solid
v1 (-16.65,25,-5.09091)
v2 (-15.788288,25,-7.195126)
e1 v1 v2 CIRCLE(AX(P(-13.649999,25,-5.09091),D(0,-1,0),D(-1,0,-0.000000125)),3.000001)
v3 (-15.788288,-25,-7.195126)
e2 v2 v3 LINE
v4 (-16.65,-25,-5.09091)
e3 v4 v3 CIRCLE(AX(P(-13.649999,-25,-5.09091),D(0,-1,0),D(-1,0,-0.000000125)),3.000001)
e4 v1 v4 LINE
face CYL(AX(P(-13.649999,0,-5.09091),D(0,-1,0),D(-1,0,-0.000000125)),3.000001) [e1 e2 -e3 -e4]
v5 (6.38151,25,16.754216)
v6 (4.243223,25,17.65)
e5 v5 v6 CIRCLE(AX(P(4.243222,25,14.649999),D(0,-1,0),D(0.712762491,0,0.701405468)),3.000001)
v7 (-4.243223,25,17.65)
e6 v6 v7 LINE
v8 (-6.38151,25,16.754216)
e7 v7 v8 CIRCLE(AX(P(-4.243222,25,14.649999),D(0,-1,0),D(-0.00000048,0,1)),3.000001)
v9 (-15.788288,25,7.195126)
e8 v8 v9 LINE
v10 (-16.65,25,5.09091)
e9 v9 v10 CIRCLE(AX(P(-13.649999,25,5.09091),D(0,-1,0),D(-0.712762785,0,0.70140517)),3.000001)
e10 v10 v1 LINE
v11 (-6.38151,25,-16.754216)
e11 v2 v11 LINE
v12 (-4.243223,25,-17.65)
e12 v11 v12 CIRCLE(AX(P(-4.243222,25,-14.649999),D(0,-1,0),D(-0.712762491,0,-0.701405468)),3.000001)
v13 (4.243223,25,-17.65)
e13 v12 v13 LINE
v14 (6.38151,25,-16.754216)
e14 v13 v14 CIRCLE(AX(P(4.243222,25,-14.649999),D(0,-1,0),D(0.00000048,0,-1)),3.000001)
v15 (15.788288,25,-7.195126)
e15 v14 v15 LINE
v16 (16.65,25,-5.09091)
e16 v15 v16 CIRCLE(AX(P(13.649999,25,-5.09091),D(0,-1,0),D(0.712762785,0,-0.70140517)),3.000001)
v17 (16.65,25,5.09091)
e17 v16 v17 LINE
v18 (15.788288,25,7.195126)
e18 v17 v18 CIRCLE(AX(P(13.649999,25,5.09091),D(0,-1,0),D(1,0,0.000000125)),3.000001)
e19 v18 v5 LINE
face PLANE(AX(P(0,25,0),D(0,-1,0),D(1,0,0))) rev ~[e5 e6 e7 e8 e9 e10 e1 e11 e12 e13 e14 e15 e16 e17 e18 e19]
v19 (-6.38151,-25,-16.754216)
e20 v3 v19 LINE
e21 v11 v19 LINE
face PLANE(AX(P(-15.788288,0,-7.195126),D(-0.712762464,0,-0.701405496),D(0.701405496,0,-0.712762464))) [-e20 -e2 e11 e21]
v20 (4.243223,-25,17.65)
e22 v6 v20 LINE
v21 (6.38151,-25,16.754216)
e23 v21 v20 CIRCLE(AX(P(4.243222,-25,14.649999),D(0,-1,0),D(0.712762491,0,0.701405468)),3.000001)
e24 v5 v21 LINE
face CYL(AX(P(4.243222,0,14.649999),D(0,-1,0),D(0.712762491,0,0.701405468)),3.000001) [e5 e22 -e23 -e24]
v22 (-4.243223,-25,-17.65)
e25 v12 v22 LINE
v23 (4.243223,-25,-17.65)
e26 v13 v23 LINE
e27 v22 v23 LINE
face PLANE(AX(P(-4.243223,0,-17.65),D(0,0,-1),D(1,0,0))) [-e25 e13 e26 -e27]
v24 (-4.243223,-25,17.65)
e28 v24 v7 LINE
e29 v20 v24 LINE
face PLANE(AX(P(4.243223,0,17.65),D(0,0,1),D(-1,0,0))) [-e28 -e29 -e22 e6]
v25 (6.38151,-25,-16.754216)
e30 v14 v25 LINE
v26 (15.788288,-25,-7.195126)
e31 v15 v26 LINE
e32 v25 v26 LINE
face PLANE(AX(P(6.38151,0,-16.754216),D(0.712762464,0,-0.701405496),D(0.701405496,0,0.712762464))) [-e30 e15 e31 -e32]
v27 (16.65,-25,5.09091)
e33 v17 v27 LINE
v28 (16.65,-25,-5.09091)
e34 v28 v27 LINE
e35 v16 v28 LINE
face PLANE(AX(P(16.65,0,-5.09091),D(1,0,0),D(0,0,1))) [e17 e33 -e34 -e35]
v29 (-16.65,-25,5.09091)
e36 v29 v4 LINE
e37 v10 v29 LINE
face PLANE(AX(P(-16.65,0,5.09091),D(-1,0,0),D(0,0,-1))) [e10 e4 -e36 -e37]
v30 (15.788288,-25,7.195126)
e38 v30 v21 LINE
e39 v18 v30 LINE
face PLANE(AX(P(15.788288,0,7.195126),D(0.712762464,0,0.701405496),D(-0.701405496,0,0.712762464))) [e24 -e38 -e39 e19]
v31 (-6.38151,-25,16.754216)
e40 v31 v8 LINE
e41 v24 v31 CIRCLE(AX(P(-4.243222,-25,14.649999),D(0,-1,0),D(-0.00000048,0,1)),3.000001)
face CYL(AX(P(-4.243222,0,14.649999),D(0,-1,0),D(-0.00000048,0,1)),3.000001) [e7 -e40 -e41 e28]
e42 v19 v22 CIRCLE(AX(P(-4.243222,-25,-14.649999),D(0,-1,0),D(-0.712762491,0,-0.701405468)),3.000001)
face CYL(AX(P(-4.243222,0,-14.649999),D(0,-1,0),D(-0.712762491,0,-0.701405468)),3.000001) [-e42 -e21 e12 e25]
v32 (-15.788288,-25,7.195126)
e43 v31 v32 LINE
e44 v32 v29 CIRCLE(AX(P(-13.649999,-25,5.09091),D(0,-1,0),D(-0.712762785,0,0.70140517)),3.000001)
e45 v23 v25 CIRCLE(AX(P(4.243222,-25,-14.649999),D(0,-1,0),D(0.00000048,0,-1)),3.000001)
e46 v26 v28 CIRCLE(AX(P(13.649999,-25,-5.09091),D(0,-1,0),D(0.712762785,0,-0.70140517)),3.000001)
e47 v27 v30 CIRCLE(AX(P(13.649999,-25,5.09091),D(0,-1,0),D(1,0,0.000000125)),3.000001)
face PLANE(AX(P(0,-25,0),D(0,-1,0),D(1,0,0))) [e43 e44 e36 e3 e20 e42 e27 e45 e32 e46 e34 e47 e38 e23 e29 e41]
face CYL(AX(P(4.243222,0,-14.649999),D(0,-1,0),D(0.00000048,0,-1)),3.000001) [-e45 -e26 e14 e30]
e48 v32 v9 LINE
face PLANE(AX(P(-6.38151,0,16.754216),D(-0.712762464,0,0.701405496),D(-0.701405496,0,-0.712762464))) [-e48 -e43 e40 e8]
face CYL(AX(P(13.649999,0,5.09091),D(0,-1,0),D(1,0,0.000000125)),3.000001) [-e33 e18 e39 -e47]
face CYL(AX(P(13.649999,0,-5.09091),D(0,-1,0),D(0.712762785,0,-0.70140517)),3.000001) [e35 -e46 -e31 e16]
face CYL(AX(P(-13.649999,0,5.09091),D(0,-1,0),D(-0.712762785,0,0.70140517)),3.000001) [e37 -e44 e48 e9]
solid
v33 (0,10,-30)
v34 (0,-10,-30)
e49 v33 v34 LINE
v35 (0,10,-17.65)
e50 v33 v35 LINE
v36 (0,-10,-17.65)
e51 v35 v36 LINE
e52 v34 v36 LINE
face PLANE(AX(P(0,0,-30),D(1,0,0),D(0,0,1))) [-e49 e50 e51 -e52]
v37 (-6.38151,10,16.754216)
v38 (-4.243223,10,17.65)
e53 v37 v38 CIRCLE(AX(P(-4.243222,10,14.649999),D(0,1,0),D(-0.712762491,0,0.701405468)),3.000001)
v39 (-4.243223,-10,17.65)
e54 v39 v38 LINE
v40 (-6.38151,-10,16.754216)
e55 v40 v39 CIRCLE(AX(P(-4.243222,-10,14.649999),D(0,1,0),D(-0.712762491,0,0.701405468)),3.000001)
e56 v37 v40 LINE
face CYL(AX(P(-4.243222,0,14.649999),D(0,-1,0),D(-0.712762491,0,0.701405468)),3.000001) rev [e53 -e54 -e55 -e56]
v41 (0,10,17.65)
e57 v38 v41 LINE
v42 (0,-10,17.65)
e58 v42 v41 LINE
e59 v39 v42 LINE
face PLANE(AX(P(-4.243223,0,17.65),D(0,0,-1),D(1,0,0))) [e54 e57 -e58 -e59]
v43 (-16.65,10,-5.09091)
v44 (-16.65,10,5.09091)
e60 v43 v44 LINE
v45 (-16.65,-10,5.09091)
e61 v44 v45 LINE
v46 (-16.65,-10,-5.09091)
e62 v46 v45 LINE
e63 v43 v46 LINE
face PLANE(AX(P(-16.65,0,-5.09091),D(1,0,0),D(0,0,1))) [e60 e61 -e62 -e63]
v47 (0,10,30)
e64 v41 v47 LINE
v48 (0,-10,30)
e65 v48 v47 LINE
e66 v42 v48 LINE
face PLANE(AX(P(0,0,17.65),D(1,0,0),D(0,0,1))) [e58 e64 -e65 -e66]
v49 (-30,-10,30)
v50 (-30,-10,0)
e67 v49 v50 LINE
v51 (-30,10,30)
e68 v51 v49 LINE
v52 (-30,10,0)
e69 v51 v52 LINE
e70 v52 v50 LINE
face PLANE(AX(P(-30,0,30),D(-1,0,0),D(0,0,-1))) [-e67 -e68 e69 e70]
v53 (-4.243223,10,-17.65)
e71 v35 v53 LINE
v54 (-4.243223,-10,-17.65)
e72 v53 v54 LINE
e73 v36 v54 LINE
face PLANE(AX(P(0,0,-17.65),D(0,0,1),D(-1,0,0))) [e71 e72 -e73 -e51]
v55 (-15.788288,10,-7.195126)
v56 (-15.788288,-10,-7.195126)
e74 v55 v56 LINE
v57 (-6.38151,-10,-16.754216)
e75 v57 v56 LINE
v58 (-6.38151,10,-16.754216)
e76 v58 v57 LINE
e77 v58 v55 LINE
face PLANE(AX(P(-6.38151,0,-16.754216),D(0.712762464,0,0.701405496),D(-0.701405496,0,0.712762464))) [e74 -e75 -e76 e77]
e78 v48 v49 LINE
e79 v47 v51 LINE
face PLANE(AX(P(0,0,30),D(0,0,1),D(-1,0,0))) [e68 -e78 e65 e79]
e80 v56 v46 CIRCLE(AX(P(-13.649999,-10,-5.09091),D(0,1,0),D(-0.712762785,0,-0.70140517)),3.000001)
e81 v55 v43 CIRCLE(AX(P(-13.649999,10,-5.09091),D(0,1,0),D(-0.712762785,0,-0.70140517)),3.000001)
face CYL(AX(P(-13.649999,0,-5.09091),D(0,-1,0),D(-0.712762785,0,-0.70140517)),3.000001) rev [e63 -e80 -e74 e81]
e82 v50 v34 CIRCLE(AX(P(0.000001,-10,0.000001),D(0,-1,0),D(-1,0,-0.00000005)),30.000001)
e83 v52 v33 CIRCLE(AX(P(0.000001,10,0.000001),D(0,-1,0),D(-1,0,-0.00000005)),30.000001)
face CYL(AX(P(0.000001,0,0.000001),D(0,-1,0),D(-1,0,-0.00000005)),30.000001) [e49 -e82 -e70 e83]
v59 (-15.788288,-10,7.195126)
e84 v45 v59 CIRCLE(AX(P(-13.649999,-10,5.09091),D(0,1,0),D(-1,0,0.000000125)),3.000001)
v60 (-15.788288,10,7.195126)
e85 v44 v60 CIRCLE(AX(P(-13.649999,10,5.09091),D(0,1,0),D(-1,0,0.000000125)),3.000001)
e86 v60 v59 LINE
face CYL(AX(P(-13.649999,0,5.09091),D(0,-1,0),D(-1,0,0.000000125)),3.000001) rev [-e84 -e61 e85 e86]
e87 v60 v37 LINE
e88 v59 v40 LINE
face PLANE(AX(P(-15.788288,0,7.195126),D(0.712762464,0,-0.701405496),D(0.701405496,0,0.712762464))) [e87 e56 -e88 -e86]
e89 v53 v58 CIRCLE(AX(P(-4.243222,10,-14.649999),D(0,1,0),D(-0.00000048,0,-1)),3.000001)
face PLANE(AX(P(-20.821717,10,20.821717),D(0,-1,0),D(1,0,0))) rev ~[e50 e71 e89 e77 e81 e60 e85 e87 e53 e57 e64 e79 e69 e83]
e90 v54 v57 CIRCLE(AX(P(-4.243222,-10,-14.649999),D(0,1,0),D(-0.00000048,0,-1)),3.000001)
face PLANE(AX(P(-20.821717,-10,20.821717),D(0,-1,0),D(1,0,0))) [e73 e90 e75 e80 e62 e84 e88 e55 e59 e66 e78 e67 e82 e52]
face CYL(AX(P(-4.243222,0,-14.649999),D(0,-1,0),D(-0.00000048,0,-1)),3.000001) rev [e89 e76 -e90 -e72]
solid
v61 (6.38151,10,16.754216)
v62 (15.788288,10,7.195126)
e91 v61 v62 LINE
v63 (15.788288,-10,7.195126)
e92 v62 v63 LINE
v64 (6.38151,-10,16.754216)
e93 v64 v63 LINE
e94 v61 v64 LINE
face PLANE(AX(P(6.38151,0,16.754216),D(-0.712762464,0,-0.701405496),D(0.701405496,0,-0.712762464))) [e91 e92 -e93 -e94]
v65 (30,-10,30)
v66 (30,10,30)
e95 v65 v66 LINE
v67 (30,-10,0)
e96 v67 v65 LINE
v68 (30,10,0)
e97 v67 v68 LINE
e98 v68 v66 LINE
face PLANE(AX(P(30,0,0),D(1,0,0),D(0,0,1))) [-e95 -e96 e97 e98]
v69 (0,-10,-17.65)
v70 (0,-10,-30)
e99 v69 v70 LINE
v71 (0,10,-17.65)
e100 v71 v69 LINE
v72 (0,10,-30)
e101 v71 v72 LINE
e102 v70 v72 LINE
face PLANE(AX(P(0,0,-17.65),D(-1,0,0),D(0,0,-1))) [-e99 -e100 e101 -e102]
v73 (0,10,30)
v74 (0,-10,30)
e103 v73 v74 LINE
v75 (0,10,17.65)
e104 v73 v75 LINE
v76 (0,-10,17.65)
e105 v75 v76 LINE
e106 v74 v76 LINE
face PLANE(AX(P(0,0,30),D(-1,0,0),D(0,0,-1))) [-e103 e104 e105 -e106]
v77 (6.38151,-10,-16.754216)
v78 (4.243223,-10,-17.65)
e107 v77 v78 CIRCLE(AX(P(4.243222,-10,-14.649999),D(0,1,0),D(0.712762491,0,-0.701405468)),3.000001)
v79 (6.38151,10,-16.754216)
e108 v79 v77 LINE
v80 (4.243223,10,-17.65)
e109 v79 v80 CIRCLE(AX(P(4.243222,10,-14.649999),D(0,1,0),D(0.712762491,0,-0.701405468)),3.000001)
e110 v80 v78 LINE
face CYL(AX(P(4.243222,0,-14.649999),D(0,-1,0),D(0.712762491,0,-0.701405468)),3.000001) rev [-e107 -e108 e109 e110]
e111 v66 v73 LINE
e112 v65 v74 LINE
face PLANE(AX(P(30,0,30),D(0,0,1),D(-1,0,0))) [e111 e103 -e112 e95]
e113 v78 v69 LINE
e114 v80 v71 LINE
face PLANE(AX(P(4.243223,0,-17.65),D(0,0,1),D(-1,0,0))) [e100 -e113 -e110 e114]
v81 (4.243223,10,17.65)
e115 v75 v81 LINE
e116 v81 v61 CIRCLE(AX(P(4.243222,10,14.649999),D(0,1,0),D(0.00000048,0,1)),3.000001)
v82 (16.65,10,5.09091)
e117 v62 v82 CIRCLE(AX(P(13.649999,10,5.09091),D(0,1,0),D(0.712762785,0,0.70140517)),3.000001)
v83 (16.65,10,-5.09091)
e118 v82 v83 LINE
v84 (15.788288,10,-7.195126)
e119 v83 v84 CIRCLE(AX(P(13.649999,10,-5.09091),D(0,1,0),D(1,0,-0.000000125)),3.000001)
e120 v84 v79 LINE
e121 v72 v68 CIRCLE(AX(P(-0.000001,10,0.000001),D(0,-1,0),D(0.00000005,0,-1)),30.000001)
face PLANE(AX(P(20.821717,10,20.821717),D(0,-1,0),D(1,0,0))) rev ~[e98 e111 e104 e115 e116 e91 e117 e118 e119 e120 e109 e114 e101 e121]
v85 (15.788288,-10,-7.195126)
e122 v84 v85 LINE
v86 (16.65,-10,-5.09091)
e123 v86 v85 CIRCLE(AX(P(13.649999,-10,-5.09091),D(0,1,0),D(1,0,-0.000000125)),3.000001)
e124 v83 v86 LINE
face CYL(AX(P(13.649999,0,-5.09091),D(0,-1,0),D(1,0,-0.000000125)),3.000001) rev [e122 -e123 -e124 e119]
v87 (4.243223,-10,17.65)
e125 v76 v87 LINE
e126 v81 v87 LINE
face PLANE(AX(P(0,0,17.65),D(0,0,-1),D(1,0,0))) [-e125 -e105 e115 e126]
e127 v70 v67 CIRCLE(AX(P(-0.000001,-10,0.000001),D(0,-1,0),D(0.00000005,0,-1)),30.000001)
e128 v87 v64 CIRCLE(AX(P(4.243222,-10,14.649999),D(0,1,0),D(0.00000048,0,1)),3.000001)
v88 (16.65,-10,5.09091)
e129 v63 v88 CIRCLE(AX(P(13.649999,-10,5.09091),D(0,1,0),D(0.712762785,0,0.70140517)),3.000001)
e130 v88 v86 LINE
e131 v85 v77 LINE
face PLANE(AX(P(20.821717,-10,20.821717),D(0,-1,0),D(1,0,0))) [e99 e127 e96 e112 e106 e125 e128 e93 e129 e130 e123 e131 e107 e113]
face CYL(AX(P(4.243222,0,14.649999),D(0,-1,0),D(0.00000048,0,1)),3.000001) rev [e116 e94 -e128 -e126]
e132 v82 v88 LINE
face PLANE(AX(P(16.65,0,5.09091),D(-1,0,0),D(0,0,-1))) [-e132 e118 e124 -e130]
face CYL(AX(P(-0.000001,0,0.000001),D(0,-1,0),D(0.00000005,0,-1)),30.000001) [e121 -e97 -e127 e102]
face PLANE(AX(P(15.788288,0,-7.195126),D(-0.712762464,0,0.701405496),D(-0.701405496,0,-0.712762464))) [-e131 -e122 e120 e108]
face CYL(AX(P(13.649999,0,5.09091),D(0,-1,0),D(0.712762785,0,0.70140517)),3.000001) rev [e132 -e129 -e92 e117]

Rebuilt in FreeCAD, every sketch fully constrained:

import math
import FreeCAD as App
import Part
import Sketcher
from FreeCAD import Vector
Q = App.Units.Quantity

doc = App.newDocument("Part")
body = doc.addObject("PartDesign::Body", "Body")

sketch1 = body.newObject("Sketcher::SketchObject", "Sketch")
sketch1.AttachmentSupport = (doc.getObject("XZ_Plane"), [""])
sketch1.MapMode = "FlatFace"
sketch1.addGeometry([
    Part.ArcOfCircle(Part.Circle(Vector(-13.6, 5.1, 0), Vector(0, 0, 1), 3), math.radians(135), math.radians(180)),
    Part.LineSegment(Vector(-16.6, 5.1, 0), Vector(-16.6, -5.1, 0)),
    Part.ArcOfCircle(Part.Circle(Vector(-13.6, -5.1, 0), Vector(0, 0, 1), 3), math.radians(-180), math.radians(-135)),
    Part.LineSegment(Vector(-15.8, -7.2, 0), Vector(-6.4, -16.8, 0)),
    Part.ArcOfCircle(Part.Circle(Vector(-4.2, -14.6, 0), Vector(0, 0, 1), 3), math.radians(-135), math.radians(-90)),
    Part.LineSegment(Vector(-4.2, -17.6, 0), Vector(4.2, -17.6, 0)),
    Part.ArcOfCircle(Part.Circle(Vector(4.2, -14.6, 0), Vector(0, 0, 1), 3), math.radians(-90), math.radians(-45)),
    Part.LineSegment(Vector(6.4, -16.8, 0), Vector(15.8, -7.2, 0)),
    Part.ArcOfCircle(Part.Circle(Vector(13.6, -5.1, 0), Vector(0, 0, 1), 3), math.radians(-45), math.radians(0)),
    Part.LineSegment(Vector(16.6, -5.1, 0), Vector(16.6, 5.1, 0)),
    Part.ArcOfCircle(Part.Circle(Vector(13.6, 5.1, 0), Vector(0, 0, 1), 3), math.radians(0), math.radians(45)),
    Part.LineSegment(Vector(15.8, 7.2, 0), Vector(6.4, 16.8, 0)),
    Part.ArcOfCircle(Part.Circle(Vector(4.2, 14.6, 0), Vector(0, 0, 1), 3), math.radians(45), math.radians(90)),
    Part.LineSegment(Vector(4.2, 17.6, 0), Vector(-4.2, 17.6, 0)),
    Part.ArcOfCircle(Part.Circle(Vector(-4.2, 14.6, 0), Vector(0, 0, 1), 3), math.radians(90), math.radians(135)),
    Part.LineSegment(Vector(-6.4, 16.8, 0), Vector(-15.8, 7.2, 0)),
], False)
sketch1.addConstraint([
    Sketcher.Constraint("Tangent", 0, 2, 1, 1),
    Sketcher.Constraint("Tangent", 1, 2, 2, 1),
    Sketcher.Constraint("Tangent", 2, 2, 3, 1),
    Sketcher.Constraint("Tangent", 3, 2, 4, 1),
    Sketcher.Constraint("Tangent", 4, 2, 5, 1),
    Sketcher.Constraint("Tangent", 5, 2, 6, 1),
    Sketcher.Constraint("Tangent", 6, 2, 7, 1),
    Sketcher.Constraint("Tangent", 7, 2, 8, 1),
    Sketcher.Constraint("Tangent", 8, 2, 9, 1),
    Sketcher.Constraint("Tangent", 9, 2, 10, 1),
    Sketcher.Constraint("Tangent", 10, 2, 11, 1),
    Sketcher.Constraint("Tangent", 11, 2, 12, 1),
    Sketcher.Constraint("Tangent", 12, 2, 13, 1),
    Sketcher.Constraint("Tangent", 13, 2, 14, 1),
    Sketcher.Constraint("Tangent", 14, 2, 15, 1),
    Sketcher.Constraint("Tangent", 15, 2, 0, 1),
    Sketcher.Constraint("Vertical", 1),
    Sketcher.Constraint("Horizontal", 5),
    Sketcher.Constraint("Vertical", 9),
    Sketcher.Constraint("Horizontal", 13),
    Sketcher.Constraint("Equal", 0, 2),
    Sketcher.Constraint("Equal", 2, 4),
    Sketcher.Constraint("Equal", 4, 6),
    Sketcher.Constraint("Equal", 6, 8),
    Sketcher.Constraint("Equal", 8, 10),
    Sketcher.Constraint("Equal", 10, 12),
    Sketcher.Constraint("Equal", 12, 14),
    Sketcher.Constraint("Symmetric", 0, 3, 8, 3, -1, 1),
    Sketcher.Constraint("Symmetric", 4, 3, 12, 3, -1, 1),
    Sketcher.Constraint("Symmetric", 3, 2, 6, 2, -2),
    Sketcher.Constraint("Symmetric", 11, 2, 14, 2, -2),
    Sketcher.Constraint("Radius", 0, Q("3.000001 mm")),
    Sketcher.Constraint("DistanceX", 0, 3, -1, 1, Q("13.649999 mm")),
    Sketcher.Constraint("DistanceY", 4, 3, -1, 1, Q("14.649999 mm")),
    Sketcher.Constraint("DistanceY", 1, 2, 1, 1, Q("10.18182 mm")),
    Sketcher.Constraint("DistanceX", 5, 1, 5, 2, Q("8.486446 mm")),
])
pad1 = body.newObject("PartDesign::Pad", "Pad")
pad1.Profile = sketch1
pad1.Type = "TwoLengths"
pad1.Length = 25
pad1.Length2 = 25
body2 = doc.addObject("PartDesign::Body", "Body001")

sketch2 = body2.newObject("Sketcher::SketchObject", "Sketch001")
sketch2.AttachmentSupport = (doc.getObject("XZ_Plane001"), [""])
sketch2.MapMode = "FlatFace"
sketch2.addGeometry([
    Part.LineSegment(Vector(0, 30, 0), Vector(-30, 30, 0)),
    Part.LineSegment(Vector(-30, 30, 0), Vector(-30, 0, 0)),
    Part.ArcOfCircle(Part.Circle(Vector(0, 0, 0), Vector(0, 0, 1), 30), math.radians(-180), math.radians(-90)),
    Part.LineSegment(Vector(0, -30, 0), Vector(0, -17.6, 0)),
    Part.LineSegment(Vector(0, -17.6, 0), Vector(-4.2, -17.6, 0)),
    Part.ArcOfCircle(Part.Circle(Vector(-4.2, -14.6, 0), Vector(0, 0, 1), 3), math.radians(-135), math.radians(-90)),
    Part.LineSegment(Vector(-6.4, -16.8, 0), Vector(-15.8, -7.2, 0)),
    Part.ArcOfCircle(Part.Circle(Vector(-13.6, -5.1, 0), Vector(0, 0, 1), 3), math.radians(-180), math.radians(-135)),
    Part.LineSegment(Vector(-16.6, -5.1, 0), Vector(-16.6, 5.1, 0)),
    Part.ArcOfCircle(Part.Circle(Vector(-13.6, 5.1, 0), Vector(0, 0, 1), 3), math.radians(135), math.radians(180)),
    Part.LineSegment(Vector(-15.8, 7.2, 0), Vector(-6.4, 16.8, 0)),
    Part.ArcOfCircle(Part.Circle(Vector(-4.2, 14.6, 0), Vector(0, 0, 1), 3), math.radians(90), math.radians(135)),
    Part.LineSegment(Vector(-4.2, 17.6, 0), Vector(0, 17.6, 0)),
    Part.LineSegment(Vector(0, 17.6, 0), Vector(0, 30, 0)),
], False)
sketch2.addConstraint([
    Sketcher.Constraint("Coincident", 0, 2, 1, 1),
    Sketcher.Constraint("Tangent", 1, 2, 2, 1),
    Sketcher.Constraint("Coincident", 2, 2, 3, 1),
    Sketcher.Constraint("Coincident", 3, 2, 4, 1),
    Sketcher.Constraint("Tangent", 4, 2, 5, 2),
    Sketcher.Constraint("Tangent", 5, 1, 6, 1),
    Sketcher.Constraint("Tangent", 6, 2, 7, 2),
    Sketcher.Constraint("Tangent", 7, 1, 8, 1),
    Sketcher.Constraint("Tangent", 8, 2, 9, 2),
    Sketcher.Constraint("Tangent", 9, 1, 10, 1),
    Sketcher.Constraint("Tangent", 10, 2, 11, 2),
    Sketcher.Constraint("Tangent", 11, 1, 12, 1),
    Sketcher.Constraint("Coincident", 12, 2, 13, 1),
    Sketcher.Constraint("Coincident", 13, 2, 0, 1),
    Sketcher.Constraint("Horizontal", 0),
    Sketcher.Constraint("Vertical", 1),
    Sketcher.Constraint("Vertical", 3),
    Sketcher.Constraint("Horizontal", 4),
    Sketcher.Constraint("Vertical", 8),
    Sketcher.Constraint("Horizontal", 12),
    Sketcher.Constraint("Vertical", 13),
    Sketcher.Constraint("Coincident", 2, 3, -1, 1),
    Sketcher.Constraint("Equal", 5, 7),
    Sketcher.Constraint("Equal", 7, 9),
    Sketcher.Constraint("Equal", 9, 11),
    Sketcher.Constraint("Symmetric", 3, 2, 12, 2, -1, 1),
    Sketcher.Constraint("Symmetric", 6, 2, 9, 1, -1),
    Sketcher.Constraint("Symmetric", 2, 2, 13, 2, -1),
    Sketcher.Constraint("Radius", 2, Q("30.000001 mm")),
    Sketcher.Constraint("Radius", 5, Q("3.000001 mm")),
    Sketcher.Constraint("DistanceY", 3, 1, 3, 2, Q("12.35 mm")),
    Sketcher.Constraint("DistanceX", 7, 3, -1, 1, Q("13.649999 mm")),
    Sketcher.Constraint("DistanceY", 8, 1, 8, 2, Q("10.18182 mm")),
    Sketcher.Constraint("DistanceX", 4, 2, 4, 1, Q("4.243223 mm")),
])
pad2 = body2.newObject("PartDesign::Pad", "Pad001")
pad2.Profile = sketch2
pad2.Type = "TwoLengths"
pad2.Length = 10
pad2.Length2 = 10
body3 = doc.addObject("PartDesign::Body", "Body002")

sketch3 = body3.newObject("Sketcher::SketchObject", "Sketch002")
sketch3.AttachmentSupport = (doc.getObject("XZ_Plane002"), [""])
sketch3.MapMode = "FlatFace"
sketch3.addGeometry([
    Part.LineSegment(Vector(30, 30, 0), Vector(0, 30, 0)),
    Part.LineSegment(Vector(0, 30, 0), Vector(0, 17.6, 0)),
    Part.LineSegment(Vector(0, 17.6, 0), Vector(4.2, 17.6, 0)),
    Part.ArcOfCircle(Part.Circle(Vector(4.2, 14.6, 0), Vector(0, 0, 1), 3), math.radians(45), math.radians(90)),
    Part.LineSegment(Vector(6.4, 16.8, 0), Vector(15.8, 7.2, 0)),
    Part.ArcOfCircle(Part.Circle(Vector(13.6, 5.1, 0), Vector(0, 0, 1), 3), math.radians(0), math.radians(45)),
    Part.LineSegment(Vector(16.6, 5.1, 0), Vector(16.6, -5.1, 0)),
    Part.ArcOfCircle(Part.Circle(Vector(13.6, -5.1, 0), Vector(0, 0, 1), 3), math.radians(-45), math.radians(0)),
    Part.LineSegment(Vector(15.8, -7.2, 0), Vector(6.4, -16.8, 0)),
    Part.ArcOfCircle(Part.Circle(Vector(4.2, -14.6, 0), Vector(0, 0, 1), 3), math.radians(-90), math.radians(-45)),
    Part.LineSegment(Vector(4.2, -17.6, 0), Vector(0, -17.6, 0)),
    Part.LineSegment(Vector(0, -17.6, 0), Vector(0, -30, 0)),
    Part.ArcOfCircle(Part.Circle(Vector(0, 0, 0), Vector(0, 0, 1), 30), math.radians(-90), math.radians(0)),
    Part.LineSegment(Vector(30, 0, 0), Vector(30, 30, 0)),
], False)
sketch3.addConstraint([
    Sketcher.Constraint("Coincident", 0, 2, 1, 1),
    Sketcher.Constraint("Coincident", 1, 2, 2, 1),
    Sketcher.Constraint("Tangent", 2, 2, 3, 2),
    Sketcher.Constraint("Tangent", 3, 1, 4, 1),
    Sketcher.Constraint("Tangent", 4, 2, 5, 2),
    Sketcher.Constraint("Tangent", 5, 1, 6, 1),
    Sketcher.Constraint("Tangent", 6, 2, 7, 2),
    Sketcher.Constraint("Tangent", 7, 1, 8, 1),
    Sketcher.Constraint("Tangent", 8, 2, 9, 2),
    Sketcher.Constraint("Tangent", 9, 1, 10, 1),
    Sketcher.Constraint("Coincident", 10, 2, 11, 1),
    Sketcher.Constraint("Coincident", 11, 2, 12, 1),
    Sketcher.Constraint("Tangent", 12, 2, 13, 1),
    Sketcher.Constraint("Coincident", 13, 2, 0, 1),
    Sketcher.Constraint("Horizontal", 0),
    Sketcher.Constraint("Vertical", 1),
    Sketcher.Constraint("Horizontal", 2),
    Sketcher.Constraint("Vertical", 6),
    Sketcher.Constraint("Horizontal", 10),
    Sketcher.Constraint("Vertical", 11),
    Sketcher.Constraint("Vertical", 13),
    Sketcher.Constraint("Coincident", 12, 3, -1, 1),
    Sketcher.Constraint("Equal", 3, 5),
    Sketcher.Constraint("Equal", 5, 7),
    Sketcher.Constraint("Equal", 7, 9),
    Sketcher.Constraint("Symmetric", 1, 2, 10, 2, -1, 1),
    Sketcher.Constraint("Symmetric", 4, 2, 7, 1, -1),
    Sketcher.Constraint("Symmetric", 0, 2, 11, 2, -1),
    Sketcher.Constraint("Radius", 3, Q("3.000001 mm")),
    Sketcher.Constraint("Radius", 12, Q("30.000001 mm")),
    Sketcher.Constraint("DistanceY", 1, 2, 1, 1, Q("12.35 mm")),
    Sketcher.Constraint("DistanceX", -1, 1, 5, 3, Q("13.649999 mm")),
    Sketcher.Constraint("DistanceY", 6, 2, 6, 1, Q("10.18182 mm")),
    Sketcher.Constraint("DistanceX", 2, 1, 2, 2, Q("4.243223 mm")),
])
pad3 = body3.newObject("PartDesign::Pad", "Pad002")
pad3.Profile = sketch3
pad3.Type = "TwoLengths"
pad3.Length = 10
pad3.Length2 = 10

doc.recompute()
